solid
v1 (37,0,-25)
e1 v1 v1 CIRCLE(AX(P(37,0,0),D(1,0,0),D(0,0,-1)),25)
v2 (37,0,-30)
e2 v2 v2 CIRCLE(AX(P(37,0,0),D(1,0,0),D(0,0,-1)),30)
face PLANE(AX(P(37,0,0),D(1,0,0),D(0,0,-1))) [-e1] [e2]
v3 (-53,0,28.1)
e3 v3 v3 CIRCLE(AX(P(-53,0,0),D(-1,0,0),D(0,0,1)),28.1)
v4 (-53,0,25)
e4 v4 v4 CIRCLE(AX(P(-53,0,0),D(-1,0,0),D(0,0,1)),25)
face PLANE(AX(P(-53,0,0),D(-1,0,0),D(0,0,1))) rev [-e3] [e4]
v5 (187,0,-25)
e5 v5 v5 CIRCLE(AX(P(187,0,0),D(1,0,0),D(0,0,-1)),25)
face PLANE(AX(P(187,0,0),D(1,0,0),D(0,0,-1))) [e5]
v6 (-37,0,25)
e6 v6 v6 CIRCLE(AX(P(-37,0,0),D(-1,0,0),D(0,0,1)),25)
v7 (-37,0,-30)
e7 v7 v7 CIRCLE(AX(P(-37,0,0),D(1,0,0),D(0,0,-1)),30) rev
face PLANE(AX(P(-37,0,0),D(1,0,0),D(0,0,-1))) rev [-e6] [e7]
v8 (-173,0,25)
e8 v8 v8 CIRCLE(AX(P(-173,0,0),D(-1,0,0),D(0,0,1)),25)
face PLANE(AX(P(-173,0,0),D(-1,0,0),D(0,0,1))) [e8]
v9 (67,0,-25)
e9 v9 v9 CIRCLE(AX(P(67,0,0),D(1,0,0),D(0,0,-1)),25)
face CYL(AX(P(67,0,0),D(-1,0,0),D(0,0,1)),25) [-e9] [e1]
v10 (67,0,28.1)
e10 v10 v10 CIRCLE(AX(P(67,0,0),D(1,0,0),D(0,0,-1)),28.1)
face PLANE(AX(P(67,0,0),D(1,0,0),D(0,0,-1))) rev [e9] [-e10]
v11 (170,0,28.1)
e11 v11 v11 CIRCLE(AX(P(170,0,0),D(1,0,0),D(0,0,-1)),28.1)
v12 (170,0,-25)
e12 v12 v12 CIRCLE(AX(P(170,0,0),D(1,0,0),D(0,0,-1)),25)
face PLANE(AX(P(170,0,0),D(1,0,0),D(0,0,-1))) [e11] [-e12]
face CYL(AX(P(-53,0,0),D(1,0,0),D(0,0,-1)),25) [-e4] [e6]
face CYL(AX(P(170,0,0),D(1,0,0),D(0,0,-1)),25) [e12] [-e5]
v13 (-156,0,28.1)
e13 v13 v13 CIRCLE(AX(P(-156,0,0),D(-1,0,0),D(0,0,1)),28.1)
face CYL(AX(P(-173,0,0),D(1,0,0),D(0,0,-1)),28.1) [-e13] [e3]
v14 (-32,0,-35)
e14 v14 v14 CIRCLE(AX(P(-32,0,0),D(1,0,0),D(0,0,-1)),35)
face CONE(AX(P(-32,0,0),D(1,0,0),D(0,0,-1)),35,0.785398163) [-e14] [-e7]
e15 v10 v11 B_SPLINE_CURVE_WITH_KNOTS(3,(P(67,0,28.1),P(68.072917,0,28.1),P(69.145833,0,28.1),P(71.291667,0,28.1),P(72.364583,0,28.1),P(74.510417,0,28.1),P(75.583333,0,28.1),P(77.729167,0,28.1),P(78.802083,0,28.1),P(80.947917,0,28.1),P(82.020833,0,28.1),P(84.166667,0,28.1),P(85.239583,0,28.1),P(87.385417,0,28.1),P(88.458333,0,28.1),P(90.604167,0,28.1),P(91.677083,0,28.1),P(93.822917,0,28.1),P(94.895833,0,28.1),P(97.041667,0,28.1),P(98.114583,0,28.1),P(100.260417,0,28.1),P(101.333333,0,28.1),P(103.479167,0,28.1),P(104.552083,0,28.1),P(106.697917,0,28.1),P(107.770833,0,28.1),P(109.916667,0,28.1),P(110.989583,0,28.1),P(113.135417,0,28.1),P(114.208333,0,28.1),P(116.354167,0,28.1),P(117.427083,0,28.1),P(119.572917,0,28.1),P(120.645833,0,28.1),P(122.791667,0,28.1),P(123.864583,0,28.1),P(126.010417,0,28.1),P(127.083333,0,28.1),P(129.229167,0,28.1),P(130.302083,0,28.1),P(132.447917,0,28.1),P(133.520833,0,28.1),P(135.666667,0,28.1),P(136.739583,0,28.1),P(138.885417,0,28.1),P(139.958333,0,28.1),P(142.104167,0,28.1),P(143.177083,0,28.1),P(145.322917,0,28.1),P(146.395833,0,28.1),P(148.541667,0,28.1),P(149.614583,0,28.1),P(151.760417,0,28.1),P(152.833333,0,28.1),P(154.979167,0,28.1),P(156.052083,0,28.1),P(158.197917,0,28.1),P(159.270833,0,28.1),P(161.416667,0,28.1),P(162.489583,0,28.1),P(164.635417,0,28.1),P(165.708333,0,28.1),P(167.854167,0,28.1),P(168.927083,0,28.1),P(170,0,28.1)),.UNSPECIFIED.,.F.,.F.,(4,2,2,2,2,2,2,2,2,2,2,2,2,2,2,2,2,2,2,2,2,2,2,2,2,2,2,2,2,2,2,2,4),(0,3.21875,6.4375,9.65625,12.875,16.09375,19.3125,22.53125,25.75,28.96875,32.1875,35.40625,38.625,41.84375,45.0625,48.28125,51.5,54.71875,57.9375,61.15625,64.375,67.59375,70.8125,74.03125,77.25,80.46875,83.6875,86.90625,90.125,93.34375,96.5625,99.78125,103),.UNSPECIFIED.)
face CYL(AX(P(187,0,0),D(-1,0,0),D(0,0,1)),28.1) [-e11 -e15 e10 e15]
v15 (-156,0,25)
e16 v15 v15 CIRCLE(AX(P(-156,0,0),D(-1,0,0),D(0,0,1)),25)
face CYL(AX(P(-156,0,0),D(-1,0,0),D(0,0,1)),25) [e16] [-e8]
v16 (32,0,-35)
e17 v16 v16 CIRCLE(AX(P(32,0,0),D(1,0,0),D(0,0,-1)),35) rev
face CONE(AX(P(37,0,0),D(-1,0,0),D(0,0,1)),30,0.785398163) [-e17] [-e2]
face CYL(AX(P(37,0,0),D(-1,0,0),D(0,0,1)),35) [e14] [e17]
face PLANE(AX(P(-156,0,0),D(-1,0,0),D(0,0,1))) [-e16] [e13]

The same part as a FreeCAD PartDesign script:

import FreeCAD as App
import Part
import Sketcher
from FreeCAD import Vector


def edges_at(feature, points):
    """Names of the edges that pass closest to the given points."""
    edges = feature.Shape.Edges
    near = lambda p: min(range(len(edges)), key=lambda i: edges[i].distToShape(Part.Vertex(*p))[0])
    return sorted({f"Edge{near(p) + 1}" for p in points})

doc = App.newDocument("Part")
params = doc.addObject("Spreadsheet::Sheet", "Params")
for row, (alias, value) in enumerate([
    ("sketch1_diameter", "70 mm"),
    ("pad1_length", "74 mm"),
    ("chamfer_size", "5 mm"),
    ("sketch2_diameter", "50 mm"),
    ("pad2_length", "16 mm"),
    ("sketch3_diameter", "56.2 mm"),
    ("pad3_length", "120 mm"),
    ("sketch4_diameter", "50 mm"),
    ("pad4_length", "30 mm"),
    ("sketch5_diameter", "56.2 mm"),
    ("pad5_length", "120 mm"),
    ("sketch6_diameter", "50 mm"),
    ("sketch6_diameter2", "56.2 mm"),
    ("pocket1_length", "17 mm"),
    ("sketch7_diameter", "50 mm"),
    ("sketch7_diameter2", "56.2 mm"),
    ("pocket2_length", "17 mm"),
], start=1):
    params.set(f"A{row}", alias)
    params.set(f"B{row}", "=" + value)
    params.setAlias(f"B{row}", alias)

body = doc.addObject("PartDesign::Body", "Body")

sketch1 = body.newObject("Sketcher::SketchObject", "Sketch")
sketch1.AttachmentSupport = (doc.getObject("YZ_Plane"), [""])
sketch1.MapMode = "FlatFace"
sketch1.addGeometry(Part.Circle(Vector(0, 0, 0), Vector(0, 0, 1), 35), False)
sketch1.addConstraint([
    Sketcher.Constraint("Coincident", 0, 3, -1, 1),
    Sketcher.Constraint("Diameter", 0, 70.0),
])
sketch1.setExpression("Constraints[1]", "Params.sketch1_diameter")
pad1 = body.newObject("PartDesign::Pad", "Pad")
pad1.Profile = sketch1
pad1.setExpression("Length", "Params.pad1_length")
pad1.Midplane = True
doc.recompute()

chamfer = body.newObject("PartDesign::Chamfer", "Chamfer")
chamfer.Base = (pad1, edges_at(pad1, [(-37, 0, 35), (37, 0, 35)]))
chamfer.setExpression("Size", "Params.chamfer_size")

sketch2 = body.newObject("Sketcher::SketchObject", "Sketch001")
sketch2.AttachmentSupport = (doc.getObject("YZ_Plane"), [""])
sketch2.MapMode = "FlatFace"
sketch2.AttachmentOffset = App.Placement(Vector(0, 0, -37), App.Rotation())
sketch2.addGeometry(Part.Circle(Vector(0, 0, 0), Vector(0, 0, 1), 25), False)
sketch2.addConstraint([
    Sketcher.Constraint("Coincident", 0, 3, -1, 1),
    Sketcher.Constraint("Diameter", 0, 50.0),
])
sketch2.setExpression("Constraints[1]", "Params.sketch2_diameter")
pad2 = body.newObject("PartDesign::Pad", "Pad001")
pad2.Profile = sketch2
pad2.setExpression("Length", "Params.pad2_length")
pad2.Reversed = True

sketch3 = body.newObject("Sketcher::SketchObject", "Sketch002")
sketch3.AttachmentSupport = (doc.getObject("YZ_Plane"), [""])
sketch3.MapMode = "FlatFace"
sketch3.AttachmentOffset = App.Placement(Vector(0, 0, -53), App.Rotation())
sketch3.addGeometry(Part.Circle(Vector(0, 0, 0), Vector(0, 0, 1), 28), False)
sketch3.addConstraint([
    Sketcher.Constraint("Coincident", 0, 3, -1, 1),
    Sketcher.Constraint("Diameter", 0, 56.2),
])
sketch3.setExpression("Constraints[1]", "Params.sketch3_diameter")
pad3 = body.newObject("PartDesign::Pad", "Pad002")
pad3.Profile = sketch3
pad3.setExpression("Length", "Params.pad3_length")
pad3.Reversed = True

sketch4 = body.newObject("Sketcher::SketchObject", "Sketch003")
sketch4.AttachmentSupport = (doc.getObject("YZ_Plane"), [""])
sketch4.MapMode = "FlatFace"
sketch4.AttachmentOffset = App.Placement(Vector(0, 0, 67), App.Rotation())
sketch4.addGeometry(Part.Circle(Vector(0, 0, 0), Vector(0, 0, 1), 25), False)
sketch4.addConstraint([
    Sketcher.Constraint("Coincident", 0, 3, -1, 1),
    Sketcher.Constraint("Diameter", 0, 50.0),
])
sketch4.setExpression("Constraints[1]", "Params.sketch4_diameter")
pad4 = body.newObject("PartDesign::Pad", "Pad003")
pad4.Profile = sketch4
pad4.setExpression("Length", "Params.pad4_length")
pad4.Reversed = True

sketch5 = body.newObject("Sketcher::SketchObject", "Sketch004")
sketch5.AttachmentSupport = (doc.getObject("YZ_Plane"), [""])
sketch5.MapMode = "FlatFace"
sketch5.AttachmentOffset = App.Placement(Vector(0, 0, 187), App.Rotation())
sketch5.addGeometry(Part.Circle(Vector(0, 0, 0), Vector(0, 0, 1), 28), False)
sketch5.addConstraint([
    Sketcher.Constraint("Coincident", 0, 3, -1, 1),
    Sketcher.Constraint("Diameter", 0, 56.2),
])
sketch5.setExpression("Constraints[1]", "Params.sketch5_diameter")
pad5 = body.newObject("PartDesign::Pad", "Pad004")
pad5.Profile = sketch5
pad5.setExpression("Length", "Params.pad5_length")
pad5.Reversed = True

sketch6 = body.newObject("Sketcher::SketchObject", "Sketch005")
sketch6.AttachmentSupport = (doc.getObject("YZ_Plane"), [""])
sketch6.MapMode = "FlatFace"
sketch6.AttachmentOffset = App.Placement(Vector(0, 0, -156), App.Rotation())
sketch6.addGeometry([
    Part.Circle(Vector(0, 0, 0), Vector(0, 0, 1), 28),
    Part.Circle(Vector(0, 0, 0), Vector(0, 0, 1), 25),
], False)
sketch6.addConstraint([
    Sketcher.Constraint("Coincident", 0, 3, -1, 1),
    Sketcher.Constraint("Coincident", 1, 3, -1, 1),
    Sketcher.Constraint("Diameter", 1, 50.0),
    Sketcher.Constraint("Diameter", 0, 56.2),
])
sketch6.setExpression("Constraints[2]", "Params.sketch6_diameter")
sketch6.setExpression("Constraints[3]", "Params.sketch6_diameter2")
pocket1 = body.newObject("PartDesign::Pocket", "Pocket")
pocket1.Profile = sketch6
pocket1.setExpression("Length", "Params.pocket1_length")

sketch7 = body.newObject("Sketcher::SketchObject", "Sketch006")
sketch7.AttachmentSupport = (doc.getObject("YZ_Plane"), [""])
sketch7.MapMode = "FlatFace"
sketch7.AttachmentOffset = App.Placement(Vector(0, 0, 187), App.Rotation())
sketch7.addGeometry([
    Part.Circle(Vector(0, 0, 0), Vector(0, 0, 1), 28),
    Part.Circle(Vector(0, 0, 0), Vector(0, 0, 1), 25),
], False)
sketch7.addConstraint([
    Sketcher.Constraint("Coincident", 0, 3, -1, 1),
    Sketcher.Constraint("Coincident", 1, 3, -1, 1),
    Sketcher.Constraint("Diameter", 1, 50.0),
    Sketcher.Constraint("Diameter", 0, 56.2),
])
sketch7.setExpression("Constraints[2]", "Params.sketch7_diameter")
sketch7.setExpression("Constraints[3]", "Params.sketch7_diameter2")
pocket2 = body.newObject("PartDesign::Pocket", "Pocket001")
pocket2.Profile = sketch7
pocket2.setExpression("Length", "Params.pocket2_length")

doc.recompute()
